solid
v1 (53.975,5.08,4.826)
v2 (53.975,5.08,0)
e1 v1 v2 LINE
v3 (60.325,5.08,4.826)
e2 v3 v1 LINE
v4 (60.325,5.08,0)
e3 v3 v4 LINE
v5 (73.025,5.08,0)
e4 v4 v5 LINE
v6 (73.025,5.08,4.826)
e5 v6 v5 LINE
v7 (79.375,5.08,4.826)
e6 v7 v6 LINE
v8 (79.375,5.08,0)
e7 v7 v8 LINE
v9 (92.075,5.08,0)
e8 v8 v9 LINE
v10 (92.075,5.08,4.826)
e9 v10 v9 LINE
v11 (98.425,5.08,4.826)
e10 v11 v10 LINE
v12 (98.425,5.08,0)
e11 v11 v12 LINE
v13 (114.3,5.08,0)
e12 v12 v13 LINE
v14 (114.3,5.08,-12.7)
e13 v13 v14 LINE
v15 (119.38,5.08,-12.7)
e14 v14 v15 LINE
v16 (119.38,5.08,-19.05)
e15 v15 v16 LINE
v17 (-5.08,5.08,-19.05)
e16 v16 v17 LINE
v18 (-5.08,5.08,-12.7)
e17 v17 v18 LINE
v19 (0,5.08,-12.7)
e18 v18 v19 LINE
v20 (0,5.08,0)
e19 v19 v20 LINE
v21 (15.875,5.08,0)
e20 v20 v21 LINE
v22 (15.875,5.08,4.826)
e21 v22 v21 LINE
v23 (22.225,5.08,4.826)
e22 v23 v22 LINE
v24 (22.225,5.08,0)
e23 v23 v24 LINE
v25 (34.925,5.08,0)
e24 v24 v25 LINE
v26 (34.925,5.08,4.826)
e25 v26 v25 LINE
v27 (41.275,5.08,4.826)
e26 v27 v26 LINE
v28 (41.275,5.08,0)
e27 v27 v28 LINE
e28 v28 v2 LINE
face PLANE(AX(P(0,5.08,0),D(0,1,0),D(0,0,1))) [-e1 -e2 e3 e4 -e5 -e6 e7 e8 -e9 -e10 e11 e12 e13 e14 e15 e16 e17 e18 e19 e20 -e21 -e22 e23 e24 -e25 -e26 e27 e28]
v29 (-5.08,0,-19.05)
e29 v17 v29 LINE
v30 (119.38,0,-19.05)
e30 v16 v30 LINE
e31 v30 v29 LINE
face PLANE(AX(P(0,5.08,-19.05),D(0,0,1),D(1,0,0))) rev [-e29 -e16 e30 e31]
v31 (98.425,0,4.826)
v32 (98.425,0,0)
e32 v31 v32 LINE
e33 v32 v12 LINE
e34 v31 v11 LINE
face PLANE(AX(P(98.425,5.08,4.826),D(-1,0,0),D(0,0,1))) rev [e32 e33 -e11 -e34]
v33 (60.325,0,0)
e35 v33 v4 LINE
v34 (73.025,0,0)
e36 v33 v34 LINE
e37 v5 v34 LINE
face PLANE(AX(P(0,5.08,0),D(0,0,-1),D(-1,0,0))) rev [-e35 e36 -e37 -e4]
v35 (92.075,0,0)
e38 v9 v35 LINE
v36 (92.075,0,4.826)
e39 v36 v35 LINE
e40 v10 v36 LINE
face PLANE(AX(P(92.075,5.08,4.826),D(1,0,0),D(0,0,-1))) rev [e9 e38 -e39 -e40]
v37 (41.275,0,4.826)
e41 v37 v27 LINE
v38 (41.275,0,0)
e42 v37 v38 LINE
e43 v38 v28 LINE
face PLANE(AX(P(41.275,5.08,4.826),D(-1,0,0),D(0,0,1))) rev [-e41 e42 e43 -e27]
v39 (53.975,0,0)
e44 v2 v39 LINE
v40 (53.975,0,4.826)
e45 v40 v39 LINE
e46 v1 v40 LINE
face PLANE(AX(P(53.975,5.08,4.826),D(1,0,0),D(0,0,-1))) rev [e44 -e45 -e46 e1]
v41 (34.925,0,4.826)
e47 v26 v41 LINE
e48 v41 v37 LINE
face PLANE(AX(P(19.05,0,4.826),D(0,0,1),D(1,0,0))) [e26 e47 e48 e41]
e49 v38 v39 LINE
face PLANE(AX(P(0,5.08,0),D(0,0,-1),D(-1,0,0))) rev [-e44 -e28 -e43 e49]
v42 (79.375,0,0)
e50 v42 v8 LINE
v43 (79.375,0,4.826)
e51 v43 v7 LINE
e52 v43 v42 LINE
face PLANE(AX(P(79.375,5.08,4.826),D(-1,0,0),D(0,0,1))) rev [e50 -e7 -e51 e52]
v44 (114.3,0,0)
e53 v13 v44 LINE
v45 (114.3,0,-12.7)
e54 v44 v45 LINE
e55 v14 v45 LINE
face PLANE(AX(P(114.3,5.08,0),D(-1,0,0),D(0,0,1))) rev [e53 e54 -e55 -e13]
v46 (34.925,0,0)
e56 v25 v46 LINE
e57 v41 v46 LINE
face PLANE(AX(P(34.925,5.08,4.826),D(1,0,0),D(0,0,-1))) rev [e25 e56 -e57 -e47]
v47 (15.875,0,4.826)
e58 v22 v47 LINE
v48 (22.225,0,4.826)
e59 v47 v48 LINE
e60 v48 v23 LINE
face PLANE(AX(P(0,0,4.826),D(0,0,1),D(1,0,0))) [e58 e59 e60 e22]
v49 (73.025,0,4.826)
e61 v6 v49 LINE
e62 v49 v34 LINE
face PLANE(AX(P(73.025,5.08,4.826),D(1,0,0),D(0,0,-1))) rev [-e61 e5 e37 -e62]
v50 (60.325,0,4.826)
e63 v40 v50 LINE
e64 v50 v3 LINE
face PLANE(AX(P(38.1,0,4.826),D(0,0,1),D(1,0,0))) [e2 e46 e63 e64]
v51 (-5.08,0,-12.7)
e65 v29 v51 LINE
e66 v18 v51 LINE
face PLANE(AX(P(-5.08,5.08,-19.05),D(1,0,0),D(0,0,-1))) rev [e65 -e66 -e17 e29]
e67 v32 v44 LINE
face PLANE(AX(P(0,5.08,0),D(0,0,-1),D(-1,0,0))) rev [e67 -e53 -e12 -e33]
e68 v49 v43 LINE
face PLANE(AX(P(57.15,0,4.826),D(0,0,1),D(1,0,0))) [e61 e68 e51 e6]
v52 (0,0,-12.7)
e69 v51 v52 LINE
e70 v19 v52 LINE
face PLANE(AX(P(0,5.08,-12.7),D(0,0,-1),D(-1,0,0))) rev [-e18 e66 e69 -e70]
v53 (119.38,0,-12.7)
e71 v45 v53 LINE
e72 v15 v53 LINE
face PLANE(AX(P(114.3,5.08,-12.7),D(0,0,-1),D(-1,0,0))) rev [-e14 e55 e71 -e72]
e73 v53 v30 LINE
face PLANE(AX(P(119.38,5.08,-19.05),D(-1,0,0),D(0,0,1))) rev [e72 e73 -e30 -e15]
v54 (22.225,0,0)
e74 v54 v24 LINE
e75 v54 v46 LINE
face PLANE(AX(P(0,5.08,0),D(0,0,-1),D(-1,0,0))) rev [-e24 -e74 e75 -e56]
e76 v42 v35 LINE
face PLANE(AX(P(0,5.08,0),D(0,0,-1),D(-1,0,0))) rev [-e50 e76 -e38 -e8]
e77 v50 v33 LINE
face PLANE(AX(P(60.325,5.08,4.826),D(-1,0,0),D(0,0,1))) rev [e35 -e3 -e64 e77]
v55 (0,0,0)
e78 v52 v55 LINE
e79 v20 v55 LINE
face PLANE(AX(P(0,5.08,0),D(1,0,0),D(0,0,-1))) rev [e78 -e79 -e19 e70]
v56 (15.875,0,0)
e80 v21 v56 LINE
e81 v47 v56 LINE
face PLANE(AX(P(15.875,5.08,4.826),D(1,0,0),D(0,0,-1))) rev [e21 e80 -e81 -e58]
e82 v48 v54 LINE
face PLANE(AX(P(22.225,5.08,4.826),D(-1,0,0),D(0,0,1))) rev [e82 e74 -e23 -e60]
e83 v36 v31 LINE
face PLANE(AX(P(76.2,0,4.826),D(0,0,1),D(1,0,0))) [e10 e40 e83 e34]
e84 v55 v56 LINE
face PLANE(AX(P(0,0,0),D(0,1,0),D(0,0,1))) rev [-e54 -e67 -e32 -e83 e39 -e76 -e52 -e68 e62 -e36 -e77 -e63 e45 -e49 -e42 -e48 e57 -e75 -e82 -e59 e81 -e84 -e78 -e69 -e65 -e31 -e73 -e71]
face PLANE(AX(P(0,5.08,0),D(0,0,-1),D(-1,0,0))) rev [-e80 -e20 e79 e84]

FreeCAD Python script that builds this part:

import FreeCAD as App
import Part
import Sketcher
from FreeCAD import Vector
Q = App.Units.Quantity

doc = App.newDocument("Part")
body = doc.addObject("PartDesign::Body", "Body")

# Sketch on XZ plane
sketch1 = body.newObject("Sketcher::SketchObject", "Sketch")
sketch1.AttachmentSupport = (doc.getObject("XZ_Plane"), [""])
sketch1.MapMode = "FlatFace"
sketch1.addGeometry([
    Part.LineSegment(Vector(0, 0, 0), Vector(114.3, 0, 0)),  # 0
    Part.LineSegment(Vector(114.3, 0, 0), Vector(114.3, -12.7, 0)),  # 1
    Part.LineSegment(Vector(114.3, -12.7, 0), Vector(119.38, -12.7, 0)),  # 2
    Part.LineSegment(Vector(119.38, -12.7, 0), Vector(119.38, -19.05, 0)),  # 3
    Part.LineSegment(Vector(119.38, -19.05, 0), Vector(-5.08, -19.05, 0)),  # 4
    Part.LineSegment(Vector(-5.08, -19.05, 0), Vector(-5.08, -12.7, 0)),  # 5
    Part.LineSegment(Vector(-5.08, -12.7, 0), Vector(0, -12.7, 0)),  # 6
    Part.LineSegment(Vector(0, -12.7, 0), Vector(0, 0, 0)),  # 7
], False)
sketch1.addConstraint([
    Sketcher.Constraint("Coincident", 0, 2, 1, 1),
    Sketcher.Constraint("Coincident", 1, 2, 2, 1),
    Sketcher.Constraint("Coincident", 2, 2, 3, 1),
    Sketcher.Constraint("Coincident", 3, 2, 4, 1),
    Sketcher.Constraint("Coincident", 4, 2, 5, 1),
    Sketcher.Constraint("Coincident", 5, 2, 6, 1),
    Sketcher.Constraint("Coincident", 6, 2, 7, 1),
    Sketcher.Constraint("Coincident", 7, 2, 0, 1),
    Sketcher.Constraint("Horizontal", 0),
    Sketcher.Constraint("Vertical", 1),
    Sketcher.Constraint("Horizontal", 2),
    Sketcher.Constraint("Vertical", 3),
    Sketcher.Constraint("Horizontal", 4),
    Sketcher.Constraint("Vertical", 5),
    Sketcher.Constraint("Horizontal", 6),
    Sketcher.Constraint("Vertical", 7),
    Sketcher.Constraint("Coincident", 7, 2, -1, 1),
    Sketcher.Constraint("Horizontal", 2, 2, 5, 2),
    Sketcher.Constraint("Equal", 2, 6),
    Sketcher.Constraint("DistanceX", 0, 1, 0, 2, Q("4.5 in")),
    Sketcher.Constraint("DistanceX", 2, 1, 2, 2, Q("0.2 in")),
    Sketcher.Constraint("DistanceY", 1, 2, 1, 1, Q("0.5 in")),
    Sketcher.Constraint("DistanceY", 3, 2, 3, 1, Q("0.25 in")),
])
pad1 = body.newObject("PartDesign::Pad", "Pad")
pad1.Profile = sketch1
pad1.Length = Q("0.2 in")
pad1.Reversed = True

# Sketch on XY plane
sketch2 = body.newObject("Sketcher::SketchObject", "Sketch001")
sketch2.AttachmentSupport = (doc.getObject("XY_Plane"), [""])
sketch2.MapMode = "FlatFace"
sketch2.addGeometry([
    Part.LineSegment(Vector(15.875, 5.08, 0), Vector(15.875, 0, 0)),
    Part.LineSegment(Vector(15.875, 0, 0), Vector(22.225, 0, 0)),
    Part.LineSegment(Vector(22.225, 0, 0), Vector(22.225, 5.08, 0)),
    Part.LineSegment(Vector(22.225, 5.08, 0), Vector(15.875, 5.08, 0)),
], False)
sketch2.addConstraint([
    Sketcher.Constraint("Coincident", 0, 2, 1, 1),
    Sketcher.Constraint("Coincident", 1, 2, 2, 1),
    Sketcher.Constraint("Coincident", 2, 2, 3, 1),
    Sketcher.Constraint("Coincident", 3, 2, 0, 1),
    Sketcher.Constraint("Vertical", 0),
    Sketcher.Constraint("Horizontal", 1),
    Sketcher.Constraint("Vertical", 2),
    Sketcher.Constraint("Horizontal", 3),
    Sketcher.Constraint("PointOnObject", 0, 2, -1),
    Sketcher.Constraint("DistanceY", 0, 2, 0, 1, Q("0.2 in")),
    Sketcher.Constraint("DistanceX", 1, 1, 1, 2, Q("0.25 in")),
    Sketcher.Constraint("DistanceX", -1, 1, 0, 2, Q("0.625 in")),
])
pad2 = body.newObject("PartDesign::Pad", "Pad001")
pad2.Profile = sketch2
pad2.Length = Q("0.19 in")
doc.recompute()

linearpattern = body.newObject("PartDesign::LinearPattern", "LinearPattern")
linearpattern.Originals = [pad2]
linearpattern.Direction = (doc.getObject("X_Axis"), [""])
linearpattern.Mode = "offset"
linearpattern.Offset = Q("0.75 in")
linearpattern.Occurrences = 5
body.Tip = linearpattern

doc.recompute()
